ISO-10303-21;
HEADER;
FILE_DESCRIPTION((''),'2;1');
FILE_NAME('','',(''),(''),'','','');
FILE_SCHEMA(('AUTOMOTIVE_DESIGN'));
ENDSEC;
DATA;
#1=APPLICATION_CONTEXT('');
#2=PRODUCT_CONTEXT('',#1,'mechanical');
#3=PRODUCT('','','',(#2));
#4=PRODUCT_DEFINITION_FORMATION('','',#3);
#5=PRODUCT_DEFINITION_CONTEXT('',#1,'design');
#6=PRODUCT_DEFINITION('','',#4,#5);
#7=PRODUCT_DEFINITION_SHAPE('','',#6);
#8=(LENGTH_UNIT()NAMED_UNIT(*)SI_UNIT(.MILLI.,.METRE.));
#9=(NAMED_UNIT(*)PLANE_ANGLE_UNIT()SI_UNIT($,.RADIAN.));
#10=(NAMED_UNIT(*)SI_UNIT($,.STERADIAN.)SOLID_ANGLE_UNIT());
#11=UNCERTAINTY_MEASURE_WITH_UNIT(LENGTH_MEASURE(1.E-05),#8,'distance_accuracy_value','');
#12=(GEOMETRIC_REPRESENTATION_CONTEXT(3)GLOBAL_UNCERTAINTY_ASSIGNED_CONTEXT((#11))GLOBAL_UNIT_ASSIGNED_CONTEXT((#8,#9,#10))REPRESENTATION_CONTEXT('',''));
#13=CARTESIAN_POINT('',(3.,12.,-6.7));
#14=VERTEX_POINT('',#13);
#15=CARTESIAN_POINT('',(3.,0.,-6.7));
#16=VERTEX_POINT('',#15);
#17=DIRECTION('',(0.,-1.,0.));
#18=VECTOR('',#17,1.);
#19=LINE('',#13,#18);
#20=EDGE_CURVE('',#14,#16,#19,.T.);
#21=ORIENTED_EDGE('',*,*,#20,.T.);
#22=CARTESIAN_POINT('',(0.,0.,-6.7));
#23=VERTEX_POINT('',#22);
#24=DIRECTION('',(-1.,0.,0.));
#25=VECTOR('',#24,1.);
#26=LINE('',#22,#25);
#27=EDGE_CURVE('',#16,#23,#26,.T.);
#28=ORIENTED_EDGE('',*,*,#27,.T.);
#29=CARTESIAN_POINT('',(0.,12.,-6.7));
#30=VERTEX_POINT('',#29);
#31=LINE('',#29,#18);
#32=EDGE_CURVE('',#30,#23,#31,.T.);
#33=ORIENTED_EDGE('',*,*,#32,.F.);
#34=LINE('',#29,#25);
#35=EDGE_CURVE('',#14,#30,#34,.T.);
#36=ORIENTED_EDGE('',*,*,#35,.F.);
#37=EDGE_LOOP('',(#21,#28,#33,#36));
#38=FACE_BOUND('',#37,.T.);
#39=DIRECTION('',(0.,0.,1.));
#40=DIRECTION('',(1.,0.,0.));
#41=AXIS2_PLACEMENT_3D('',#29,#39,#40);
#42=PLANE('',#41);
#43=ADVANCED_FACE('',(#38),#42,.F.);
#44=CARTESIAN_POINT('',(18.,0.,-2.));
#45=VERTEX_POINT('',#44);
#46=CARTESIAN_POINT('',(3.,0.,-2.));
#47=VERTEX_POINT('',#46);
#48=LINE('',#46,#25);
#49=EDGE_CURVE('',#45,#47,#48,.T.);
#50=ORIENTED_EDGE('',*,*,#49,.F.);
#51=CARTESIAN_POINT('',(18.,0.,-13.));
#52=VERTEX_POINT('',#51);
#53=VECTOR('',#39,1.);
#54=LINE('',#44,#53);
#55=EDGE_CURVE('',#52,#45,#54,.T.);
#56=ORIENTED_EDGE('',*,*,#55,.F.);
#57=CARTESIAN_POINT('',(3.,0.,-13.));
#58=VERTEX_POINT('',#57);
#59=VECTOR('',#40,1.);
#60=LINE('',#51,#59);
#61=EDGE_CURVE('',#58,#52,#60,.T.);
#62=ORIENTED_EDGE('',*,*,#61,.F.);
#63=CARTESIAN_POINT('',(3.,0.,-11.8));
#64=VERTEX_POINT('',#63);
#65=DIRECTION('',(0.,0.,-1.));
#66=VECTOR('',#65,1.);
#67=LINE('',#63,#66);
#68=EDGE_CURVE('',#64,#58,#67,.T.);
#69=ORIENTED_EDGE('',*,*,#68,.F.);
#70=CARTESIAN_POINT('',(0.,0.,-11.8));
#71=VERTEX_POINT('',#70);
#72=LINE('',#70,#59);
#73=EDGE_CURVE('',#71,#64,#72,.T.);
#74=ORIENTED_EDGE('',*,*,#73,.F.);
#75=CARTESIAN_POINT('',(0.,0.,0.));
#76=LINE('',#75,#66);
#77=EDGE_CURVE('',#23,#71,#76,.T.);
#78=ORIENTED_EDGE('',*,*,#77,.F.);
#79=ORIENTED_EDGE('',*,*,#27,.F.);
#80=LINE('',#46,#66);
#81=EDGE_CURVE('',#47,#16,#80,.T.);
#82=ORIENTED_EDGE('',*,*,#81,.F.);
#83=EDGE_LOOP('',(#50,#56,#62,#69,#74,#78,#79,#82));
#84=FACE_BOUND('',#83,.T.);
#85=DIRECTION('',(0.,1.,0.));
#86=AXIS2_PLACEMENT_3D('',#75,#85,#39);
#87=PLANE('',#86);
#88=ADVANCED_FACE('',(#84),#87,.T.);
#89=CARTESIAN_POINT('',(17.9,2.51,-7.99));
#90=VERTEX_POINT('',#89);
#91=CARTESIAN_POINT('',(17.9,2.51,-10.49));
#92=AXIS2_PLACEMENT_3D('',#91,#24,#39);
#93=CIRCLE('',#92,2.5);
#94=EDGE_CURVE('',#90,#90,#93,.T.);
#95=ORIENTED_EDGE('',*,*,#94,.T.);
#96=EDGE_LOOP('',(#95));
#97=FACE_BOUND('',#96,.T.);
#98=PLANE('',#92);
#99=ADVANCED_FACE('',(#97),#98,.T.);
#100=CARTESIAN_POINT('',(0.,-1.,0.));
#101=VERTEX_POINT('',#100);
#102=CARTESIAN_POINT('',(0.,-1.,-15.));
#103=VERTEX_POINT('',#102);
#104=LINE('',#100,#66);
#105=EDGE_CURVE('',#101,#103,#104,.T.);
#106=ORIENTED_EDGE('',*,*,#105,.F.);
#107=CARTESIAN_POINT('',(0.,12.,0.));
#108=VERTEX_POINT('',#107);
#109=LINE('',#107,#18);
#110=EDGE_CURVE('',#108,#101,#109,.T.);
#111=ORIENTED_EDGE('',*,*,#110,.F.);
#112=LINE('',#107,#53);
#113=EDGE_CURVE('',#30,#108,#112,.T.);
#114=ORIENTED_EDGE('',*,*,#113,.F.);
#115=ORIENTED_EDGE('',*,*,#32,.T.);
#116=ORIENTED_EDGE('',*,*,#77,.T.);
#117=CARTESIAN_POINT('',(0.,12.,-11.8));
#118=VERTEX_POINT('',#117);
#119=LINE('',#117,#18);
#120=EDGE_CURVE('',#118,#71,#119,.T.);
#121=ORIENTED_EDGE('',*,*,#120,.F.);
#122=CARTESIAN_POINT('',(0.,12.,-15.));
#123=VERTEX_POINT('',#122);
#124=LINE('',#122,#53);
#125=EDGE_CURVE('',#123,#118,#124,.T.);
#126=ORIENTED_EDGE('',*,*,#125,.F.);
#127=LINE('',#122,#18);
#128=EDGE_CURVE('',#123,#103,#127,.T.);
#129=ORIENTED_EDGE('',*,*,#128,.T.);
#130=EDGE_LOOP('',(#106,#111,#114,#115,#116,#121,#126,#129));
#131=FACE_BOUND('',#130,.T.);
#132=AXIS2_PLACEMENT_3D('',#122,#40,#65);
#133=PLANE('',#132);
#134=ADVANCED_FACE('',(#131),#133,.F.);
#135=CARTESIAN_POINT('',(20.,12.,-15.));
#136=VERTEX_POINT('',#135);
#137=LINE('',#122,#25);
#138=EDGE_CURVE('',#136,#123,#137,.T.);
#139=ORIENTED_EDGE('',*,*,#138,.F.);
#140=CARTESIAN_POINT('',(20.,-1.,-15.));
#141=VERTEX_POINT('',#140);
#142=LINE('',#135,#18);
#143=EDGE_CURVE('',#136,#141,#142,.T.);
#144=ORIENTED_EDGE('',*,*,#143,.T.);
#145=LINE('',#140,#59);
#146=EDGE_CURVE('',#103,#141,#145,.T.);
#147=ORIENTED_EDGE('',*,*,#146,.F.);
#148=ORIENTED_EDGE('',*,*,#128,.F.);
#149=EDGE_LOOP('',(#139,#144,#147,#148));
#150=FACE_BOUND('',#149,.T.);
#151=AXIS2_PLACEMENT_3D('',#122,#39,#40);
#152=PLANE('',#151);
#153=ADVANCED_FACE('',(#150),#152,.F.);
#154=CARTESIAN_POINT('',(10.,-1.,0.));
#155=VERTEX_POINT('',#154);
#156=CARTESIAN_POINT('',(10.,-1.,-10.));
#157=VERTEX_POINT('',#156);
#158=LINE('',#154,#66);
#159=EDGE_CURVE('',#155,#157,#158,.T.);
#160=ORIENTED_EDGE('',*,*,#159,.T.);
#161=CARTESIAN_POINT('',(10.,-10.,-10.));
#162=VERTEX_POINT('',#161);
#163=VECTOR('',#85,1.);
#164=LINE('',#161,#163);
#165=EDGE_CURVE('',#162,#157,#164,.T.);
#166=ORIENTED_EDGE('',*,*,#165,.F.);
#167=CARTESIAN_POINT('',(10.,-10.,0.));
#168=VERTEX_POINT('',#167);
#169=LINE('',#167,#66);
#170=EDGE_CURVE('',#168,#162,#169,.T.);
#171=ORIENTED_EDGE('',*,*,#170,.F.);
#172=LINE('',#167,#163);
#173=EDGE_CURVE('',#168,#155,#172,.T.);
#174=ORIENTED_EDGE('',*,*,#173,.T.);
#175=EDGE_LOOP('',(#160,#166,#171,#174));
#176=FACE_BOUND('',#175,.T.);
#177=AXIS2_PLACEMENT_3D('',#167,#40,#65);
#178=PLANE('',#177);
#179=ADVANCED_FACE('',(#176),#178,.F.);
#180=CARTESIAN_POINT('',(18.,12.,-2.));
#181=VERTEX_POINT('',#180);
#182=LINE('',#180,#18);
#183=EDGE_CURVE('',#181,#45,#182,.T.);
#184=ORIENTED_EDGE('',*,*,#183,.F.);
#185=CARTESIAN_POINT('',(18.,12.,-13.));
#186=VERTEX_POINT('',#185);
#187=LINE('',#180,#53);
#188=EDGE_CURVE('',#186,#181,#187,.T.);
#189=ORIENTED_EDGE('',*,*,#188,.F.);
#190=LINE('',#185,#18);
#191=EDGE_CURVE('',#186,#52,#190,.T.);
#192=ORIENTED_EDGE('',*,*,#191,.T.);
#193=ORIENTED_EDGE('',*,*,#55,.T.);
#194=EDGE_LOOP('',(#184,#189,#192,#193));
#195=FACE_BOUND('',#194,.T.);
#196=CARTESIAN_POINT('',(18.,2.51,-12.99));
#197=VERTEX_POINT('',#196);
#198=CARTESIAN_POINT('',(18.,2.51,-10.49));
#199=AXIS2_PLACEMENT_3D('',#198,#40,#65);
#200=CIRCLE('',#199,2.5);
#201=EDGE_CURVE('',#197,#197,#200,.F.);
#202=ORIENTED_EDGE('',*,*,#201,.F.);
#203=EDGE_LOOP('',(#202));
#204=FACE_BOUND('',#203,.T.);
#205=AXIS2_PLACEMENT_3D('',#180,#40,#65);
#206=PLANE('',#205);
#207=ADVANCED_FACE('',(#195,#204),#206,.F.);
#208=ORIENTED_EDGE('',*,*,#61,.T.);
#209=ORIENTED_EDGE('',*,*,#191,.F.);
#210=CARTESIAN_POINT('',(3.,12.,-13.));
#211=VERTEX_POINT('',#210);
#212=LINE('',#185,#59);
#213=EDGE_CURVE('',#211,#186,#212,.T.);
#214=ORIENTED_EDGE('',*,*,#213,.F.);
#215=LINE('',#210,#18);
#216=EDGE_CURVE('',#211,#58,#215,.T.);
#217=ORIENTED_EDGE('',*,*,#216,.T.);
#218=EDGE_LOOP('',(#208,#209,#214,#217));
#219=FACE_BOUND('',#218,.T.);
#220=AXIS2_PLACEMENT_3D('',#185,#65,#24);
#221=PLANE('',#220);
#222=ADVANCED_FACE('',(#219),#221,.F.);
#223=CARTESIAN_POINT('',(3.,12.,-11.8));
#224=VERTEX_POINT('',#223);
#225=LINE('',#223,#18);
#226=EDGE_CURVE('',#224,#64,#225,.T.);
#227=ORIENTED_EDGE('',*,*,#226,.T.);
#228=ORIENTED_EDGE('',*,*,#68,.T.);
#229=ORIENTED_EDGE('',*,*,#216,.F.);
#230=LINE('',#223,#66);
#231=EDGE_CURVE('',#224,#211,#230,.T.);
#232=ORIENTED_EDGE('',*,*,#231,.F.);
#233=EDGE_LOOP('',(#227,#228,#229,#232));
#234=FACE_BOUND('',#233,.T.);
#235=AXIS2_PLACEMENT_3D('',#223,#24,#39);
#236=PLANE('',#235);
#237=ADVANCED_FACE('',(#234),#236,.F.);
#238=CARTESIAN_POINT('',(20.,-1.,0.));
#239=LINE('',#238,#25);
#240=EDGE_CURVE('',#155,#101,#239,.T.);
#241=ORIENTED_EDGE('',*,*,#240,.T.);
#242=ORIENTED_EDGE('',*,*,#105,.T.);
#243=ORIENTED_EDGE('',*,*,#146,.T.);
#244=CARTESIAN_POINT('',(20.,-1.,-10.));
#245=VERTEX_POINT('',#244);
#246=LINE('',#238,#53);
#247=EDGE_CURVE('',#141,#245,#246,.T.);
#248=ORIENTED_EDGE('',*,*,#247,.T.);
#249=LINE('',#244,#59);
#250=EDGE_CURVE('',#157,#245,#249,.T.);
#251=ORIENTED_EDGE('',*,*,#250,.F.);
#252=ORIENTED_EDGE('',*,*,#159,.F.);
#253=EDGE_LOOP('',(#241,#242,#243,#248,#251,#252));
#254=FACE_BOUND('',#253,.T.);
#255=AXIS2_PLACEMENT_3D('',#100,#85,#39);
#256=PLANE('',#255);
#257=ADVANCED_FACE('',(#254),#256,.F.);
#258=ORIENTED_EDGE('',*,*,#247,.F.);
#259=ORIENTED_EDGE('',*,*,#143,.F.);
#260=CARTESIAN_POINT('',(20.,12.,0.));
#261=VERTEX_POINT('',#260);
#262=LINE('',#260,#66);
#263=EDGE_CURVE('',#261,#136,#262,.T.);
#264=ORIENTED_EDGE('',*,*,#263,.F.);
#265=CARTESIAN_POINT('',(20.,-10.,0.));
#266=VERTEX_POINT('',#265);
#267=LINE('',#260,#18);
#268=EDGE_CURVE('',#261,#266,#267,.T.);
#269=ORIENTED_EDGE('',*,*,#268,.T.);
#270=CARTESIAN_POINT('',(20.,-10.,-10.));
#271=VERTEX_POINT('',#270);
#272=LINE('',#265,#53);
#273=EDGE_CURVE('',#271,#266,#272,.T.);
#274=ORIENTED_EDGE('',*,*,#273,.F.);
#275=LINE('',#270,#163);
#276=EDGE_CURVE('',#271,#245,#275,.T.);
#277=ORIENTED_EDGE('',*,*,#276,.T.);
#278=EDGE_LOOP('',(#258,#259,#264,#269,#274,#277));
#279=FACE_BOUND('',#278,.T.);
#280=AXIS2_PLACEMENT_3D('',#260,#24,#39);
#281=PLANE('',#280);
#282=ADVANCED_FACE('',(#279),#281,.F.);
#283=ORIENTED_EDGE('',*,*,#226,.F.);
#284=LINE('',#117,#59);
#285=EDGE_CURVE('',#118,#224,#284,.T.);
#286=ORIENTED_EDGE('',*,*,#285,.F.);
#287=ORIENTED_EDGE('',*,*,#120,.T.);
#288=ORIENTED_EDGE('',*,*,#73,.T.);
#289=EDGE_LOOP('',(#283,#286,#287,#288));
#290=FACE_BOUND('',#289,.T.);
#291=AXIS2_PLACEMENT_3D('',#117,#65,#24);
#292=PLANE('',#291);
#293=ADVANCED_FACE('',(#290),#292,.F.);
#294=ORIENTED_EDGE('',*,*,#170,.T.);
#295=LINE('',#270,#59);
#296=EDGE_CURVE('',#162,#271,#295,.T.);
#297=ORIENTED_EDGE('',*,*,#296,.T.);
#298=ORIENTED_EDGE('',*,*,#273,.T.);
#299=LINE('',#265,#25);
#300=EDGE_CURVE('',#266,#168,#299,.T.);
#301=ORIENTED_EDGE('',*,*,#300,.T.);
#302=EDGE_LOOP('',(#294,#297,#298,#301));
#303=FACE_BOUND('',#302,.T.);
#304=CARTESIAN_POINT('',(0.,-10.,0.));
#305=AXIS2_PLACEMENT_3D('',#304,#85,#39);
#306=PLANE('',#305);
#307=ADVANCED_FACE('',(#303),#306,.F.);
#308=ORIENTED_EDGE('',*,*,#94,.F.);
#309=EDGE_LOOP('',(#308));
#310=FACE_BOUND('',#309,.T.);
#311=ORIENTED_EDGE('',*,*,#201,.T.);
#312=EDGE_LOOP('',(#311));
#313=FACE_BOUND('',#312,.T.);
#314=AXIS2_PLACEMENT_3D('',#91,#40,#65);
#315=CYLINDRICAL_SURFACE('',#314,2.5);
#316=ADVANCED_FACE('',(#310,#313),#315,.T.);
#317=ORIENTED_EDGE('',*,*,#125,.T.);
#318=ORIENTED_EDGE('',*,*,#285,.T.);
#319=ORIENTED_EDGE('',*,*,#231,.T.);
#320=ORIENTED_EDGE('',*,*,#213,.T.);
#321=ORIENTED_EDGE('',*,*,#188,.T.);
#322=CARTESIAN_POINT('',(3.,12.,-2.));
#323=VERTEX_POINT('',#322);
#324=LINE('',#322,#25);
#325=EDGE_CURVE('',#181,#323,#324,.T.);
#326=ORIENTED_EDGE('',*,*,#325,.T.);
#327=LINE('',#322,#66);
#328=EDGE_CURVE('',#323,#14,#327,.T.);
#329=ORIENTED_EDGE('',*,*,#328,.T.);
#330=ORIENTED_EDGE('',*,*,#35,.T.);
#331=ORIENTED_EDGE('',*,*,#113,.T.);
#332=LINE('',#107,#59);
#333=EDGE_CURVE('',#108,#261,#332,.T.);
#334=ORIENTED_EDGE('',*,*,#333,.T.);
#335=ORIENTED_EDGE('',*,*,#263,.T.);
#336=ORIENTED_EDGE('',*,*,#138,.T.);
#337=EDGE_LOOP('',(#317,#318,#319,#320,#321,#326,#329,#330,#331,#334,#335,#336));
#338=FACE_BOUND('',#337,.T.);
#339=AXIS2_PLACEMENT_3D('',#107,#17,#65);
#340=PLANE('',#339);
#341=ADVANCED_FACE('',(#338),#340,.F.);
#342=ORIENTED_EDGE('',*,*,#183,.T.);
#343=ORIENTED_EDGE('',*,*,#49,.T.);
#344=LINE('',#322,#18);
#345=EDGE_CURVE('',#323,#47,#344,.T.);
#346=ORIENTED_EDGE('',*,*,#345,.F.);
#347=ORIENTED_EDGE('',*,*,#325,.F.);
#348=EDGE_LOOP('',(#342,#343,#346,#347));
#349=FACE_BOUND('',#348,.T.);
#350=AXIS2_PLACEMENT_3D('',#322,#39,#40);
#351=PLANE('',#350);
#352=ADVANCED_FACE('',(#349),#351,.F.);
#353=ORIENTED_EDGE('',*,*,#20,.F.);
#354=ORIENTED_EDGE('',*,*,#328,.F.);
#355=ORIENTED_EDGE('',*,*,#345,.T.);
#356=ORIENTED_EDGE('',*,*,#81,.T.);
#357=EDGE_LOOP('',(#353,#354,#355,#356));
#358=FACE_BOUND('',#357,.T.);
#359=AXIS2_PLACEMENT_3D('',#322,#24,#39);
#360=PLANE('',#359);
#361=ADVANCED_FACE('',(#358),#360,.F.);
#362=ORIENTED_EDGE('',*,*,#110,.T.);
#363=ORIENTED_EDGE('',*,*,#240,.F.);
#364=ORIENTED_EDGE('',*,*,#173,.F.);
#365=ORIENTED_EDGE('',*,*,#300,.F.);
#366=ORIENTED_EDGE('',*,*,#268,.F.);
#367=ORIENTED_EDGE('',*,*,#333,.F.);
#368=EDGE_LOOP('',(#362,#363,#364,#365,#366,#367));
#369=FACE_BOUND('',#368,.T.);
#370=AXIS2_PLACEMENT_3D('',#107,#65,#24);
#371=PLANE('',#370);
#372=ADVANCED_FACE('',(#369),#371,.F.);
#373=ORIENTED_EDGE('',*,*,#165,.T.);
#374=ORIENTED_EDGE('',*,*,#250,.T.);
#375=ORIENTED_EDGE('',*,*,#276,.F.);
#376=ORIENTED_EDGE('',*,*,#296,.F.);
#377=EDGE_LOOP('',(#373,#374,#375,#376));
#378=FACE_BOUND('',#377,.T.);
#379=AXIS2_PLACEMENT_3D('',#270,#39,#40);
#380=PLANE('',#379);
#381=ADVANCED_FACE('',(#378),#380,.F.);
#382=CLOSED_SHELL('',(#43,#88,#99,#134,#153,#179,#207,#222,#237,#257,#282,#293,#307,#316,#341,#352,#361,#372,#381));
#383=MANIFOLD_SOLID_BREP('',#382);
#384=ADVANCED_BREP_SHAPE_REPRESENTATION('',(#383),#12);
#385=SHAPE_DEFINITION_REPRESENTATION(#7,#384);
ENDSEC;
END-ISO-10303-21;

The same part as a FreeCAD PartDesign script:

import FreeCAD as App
import Part
import Sketcher

V = App.Vector


def add_polygon(sketch, points):
    """Adds a closed chain of lines whose ends are joined by coincident constraints."""
    first, n = sketch.GeometryCount, len(points)
    for a, b in zip(points, points[1:] + points[:1]):
        sketch.addGeometry(Part.LineSegment(App.Vector(*a, 0), App.Vector(*b, 0)), False)
    for i in range(n):
        sketch.addConstraint(Sketcher.Constraint("Coincident", first + i, 2, first + (i + 1) % n, 1))

doc = App.newDocument("Part")
body = doc.addObject("PartDesign::Body", "Body")

# Sketch on XZ plane
sketch1 = body.newObject("Sketcher::SketchObject", "Sketch")
sketch1.AttachmentSupport = (doc.getObject("XZ_Plane"), [""])
sketch1.MapMode = "FlatFace"
add_polygon(sketch1, [(18, -2), (3, -2), (3, -6.7), (0, -6.7), (0, 0), (20, 0), (20, -15), (0, -15), (0, -11.8), (3, -11.8), (3, -13), (18, -13)])  # lines 0-11
sketch1.addConstraint([
    Sketcher.Constraint("Horizontal", 0),
    Sketcher.Constraint("Vertical", 1),
    Sketcher.Constraint("Horizontal", 2),
    Sketcher.Constraint("Vertical", 3),
    Sketcher.Constraint("Horizontal", 4),
    Sketcher.Constraint("Vertical", 5),
    Sketcher.Constraint("Horizontal", 6),
    Sketcher.Constraint("Vertical", 7),
    Sketcher.Constraint("Horizontal", 8),
    Sketcher.Constraint("Vertical", 9),
    Sketcher.Constraint("Horizontal", 10),
    Sketcher.Constraint("Vertical", 11),
    Sketcher.Constraint("Coincident", 3, 2, -1, 1),
    Sketcher.Constraint("PointOnObject", 6, 2, -2),
    Sketcher.Constraint("Vertical", 1, 2, 8, 2),
    Sketcher.Constraint("Equal", 10, 5),
    Sketcher.Constraint("DistanceX", 0, 2, 0, 1, 15.0),
    Sketcher.Constraint("DistanceX", 2, 2, 2, 1, 3.0),
    Sketcher.Constraint("DistanceX", 4, 1, 4, 2, 20.0),
    Sketcher.Constraint("DistanceY", 11, 1, 11, 2, 11.0),
    Sketcher.Constraint("DistanceY", 1, 2, 1, 1, 4.7),
    Sketcher.Constraint("DistanceY", 3, 1, 3, 2, 6.7),
    Sketcher.Constraint("DistanceY", 7, 1, 7, 2, 3.2),
])
pad1 = body.newObject("PartDesign::Pad", "Pad")
pad1.Profile = sketch1
pad1.Length = 12
pad1.Reversed = True

# Sketch on XZ plane
sketch2 = body.newObject("Sketcher::SketchObject", "Sketch001")
sketch2.AttachmentSupport = (doc.getObject("XZ_Plane"), [""])
sketch2.MapMode = "FlatFace"
add_polygon(sketch2, [(0, 0), (0, -15), (20, -15), (20, 0)])  # lines 0-3
sketch2.addConstraint([
    Sketcher.Constraint("Vertical", 0),
    Sketcher.Constraint("Horizontal", 1),
    Sketcher.Constraint("Vertical", 2),
    Sketcher.Constraint("Horizontal", 3),
    Sketcher.Constraint("Coincident", 3, 2, -1, 1),
    Sketcher.Constraint("DistanceX", 1, 1, 1, 2, 20.0),
    Sketcher.Constraint("DistanceY", 0, 2, 0, 1, 15.0),
])
pad2 = body.newObject("PartDesign::Pad", "Pad001")
pad2.Profile = sketch2
pad2.Length = 1

# Sketch on XZ plane
sketch3 = body.newObject("Sketcher::SketchObject", "Sketch002")
sketch3.AttachmentSupport = (doc.getObject("XZ_Plane"), [""])
sketch3.MapMode = "FlatFace"
sketch3.AttachmentOffset = App.Placement(V(0, 0, 1), App.Rotation())
add_polygon(sketch3, [(10, 0), (10, -10), (20, -10), (20, 0)])  # lines 0-3
sketch3.addConstraint([
    Sketcher.Constraint("Vertical", 0),
    Sketcher.Constraint("Horizontal", 1),
    Sketcher.Constraint("Vertical", 2),
    Sketcher.Constraint("Horizontal", 3),
    Sketcher.Constraint("PointOnObject", 2, 2, -1),
    Sketcher.Constraint("Equal", 3, 0),
    Sketcher.Constraint("DistanceX", 1, 1, 1, 2, 10.0),
    Sketcher.Constraint("DistanceX", -1, 1, 0, 2, 10.0),
])
pad3 = body.newObject("PartDesign::Pad", "Pad002")
pad3.Profile = sketch3
pad3.Length = 9

# Sketch on YZ plane
sketch4 = body.newObject("Sketcher::SketchObject", "Sketch003")
sketch4.AttachmentSupport = (doc.getObject("YZ_Plane"), [""])
sketch4.MapMode = "FlatFace"
sketch4.AttachmentOffset = App.Placement(V(0, 0, 18), App.Rotation())
sketch4.addGeometry(Part.Circle(V(2.51, -10.49, 0), V(0, 0, 1), 2.5), False)
sketch4.addConstraint([
    Sketcher.Constraint("Diameter", 0, 5.0),
    Sketcher.Constraint("DistanceX", -1, 1, 0, 3, 2.51),
    Sketcher.Constraint("DistanceY", 0, 3, -1, 1, 10.49),
])
pad4 = body.newObject("PartDesign::Pad", "Pad003")
pad4.Profile = sketch4
pad4.Length = 0.1
pad4.Reversed = True

doc.recompute()
